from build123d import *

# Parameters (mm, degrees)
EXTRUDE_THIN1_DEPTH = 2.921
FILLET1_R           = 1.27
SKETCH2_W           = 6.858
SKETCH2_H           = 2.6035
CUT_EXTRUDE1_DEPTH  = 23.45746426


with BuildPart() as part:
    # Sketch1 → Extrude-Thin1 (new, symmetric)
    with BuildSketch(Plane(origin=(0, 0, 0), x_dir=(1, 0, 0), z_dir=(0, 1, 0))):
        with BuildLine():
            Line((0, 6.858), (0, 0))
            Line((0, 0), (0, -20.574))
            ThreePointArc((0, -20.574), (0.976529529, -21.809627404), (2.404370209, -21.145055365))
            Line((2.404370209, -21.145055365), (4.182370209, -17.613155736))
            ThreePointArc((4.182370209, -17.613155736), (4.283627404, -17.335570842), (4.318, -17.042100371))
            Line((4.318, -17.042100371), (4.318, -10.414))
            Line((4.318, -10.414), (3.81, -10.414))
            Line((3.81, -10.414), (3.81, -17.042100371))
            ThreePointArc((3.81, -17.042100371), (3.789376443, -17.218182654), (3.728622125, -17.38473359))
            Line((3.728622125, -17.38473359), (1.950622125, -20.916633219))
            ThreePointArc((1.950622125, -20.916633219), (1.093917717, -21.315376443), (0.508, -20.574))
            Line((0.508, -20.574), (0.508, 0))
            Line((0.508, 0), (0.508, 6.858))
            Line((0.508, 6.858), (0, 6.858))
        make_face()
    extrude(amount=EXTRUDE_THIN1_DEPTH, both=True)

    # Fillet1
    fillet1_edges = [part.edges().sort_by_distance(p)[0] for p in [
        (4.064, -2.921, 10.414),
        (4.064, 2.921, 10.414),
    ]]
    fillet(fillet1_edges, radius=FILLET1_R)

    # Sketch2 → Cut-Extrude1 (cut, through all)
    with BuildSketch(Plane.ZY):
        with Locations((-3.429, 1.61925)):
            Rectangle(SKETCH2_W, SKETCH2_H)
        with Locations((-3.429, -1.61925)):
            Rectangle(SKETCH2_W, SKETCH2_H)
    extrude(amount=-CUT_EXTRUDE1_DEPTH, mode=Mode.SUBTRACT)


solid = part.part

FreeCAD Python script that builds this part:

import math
import FreeCAD as App
import Part
import Sketcher
from FreeCAD import Vector
Q = App.Units.Quantity


def edges_at(feature, points):
    """Names of the edges that pass closest to the given points."""
    edges = feature.Shape.Edges
    near = lambda p: min(range(len(edges)), key=lambda i: edges[i].distToShape(Part.Vertex(*p))[0])
    return sorted({f"Edge{near(p) + 1}" for p in points})


def add_polygon(sketch, points):
    """Adds a closed chain of lines whose ends are joined by coincident constraints."""
    first, n = sketch.GeometryCount, len(points)
    for a, b in zip(points, points[1:] + points[:1]):
        sketch.addGeometry(Part.LineSegment(App.Vector(*a, 0), App.Vector(*b, 0)), False)
    for i in range(n):
        sketch.addConstraint(Sketcher.Constraint("Coincident", first + i, 2, first + (i + 1) % n, 1))

doc = App.newDocument("Part")
body = doc.addObject("PartDesign::Body", "Body")

# Sketch on XZ plane
sketch1 = doc.addObject("Sketcher::SketchObject", "Sketch")
body.addObject(sketch1)
sketch1.AttachmentSupport = (doc.XZ_Plane, [""])
sketch1.MapMode = "FlatFace"
sketch1.addGeometry([
    Part.LineSegment(Vector(0, -6.858, 0), Vector(0, 20.574, 0)),  # 0
    Part.ArcOfCircle(Part.Circle(Vector(1.27, 20.574, 0), Vector(0, 0, 1), 1.27), math.radians(26.721224), math.radians(180)),  # 1
    Part.LineSegment(Vector(2.40437, 21.145055, 0), Vector(4.18237, 17.613156, 0)),  # 2
    Part.ArcOfCircle(Part.Circle(Vector(3.048, 17.0421, 0), Vector(0, 0, 1), 1.27), math.radians(0), math.radians(26.721223)),  # 3
    Part.LineSegment(Vector(4.318, 17.0421, 0), Vector(4.318, 10.414, 0)),  # 4
    Part.LineSegment(Vector(4.318, 10.414, 0), Vector(3.81, 10.414, 0)),  # 5
    Part.LineSegment(Vector(3.81, 10.414, 0), Vector(3.81, 17.0421, 0)),  # 6
    Part.ArcOfCircle(Part.Circle(Vector(3.048, 17.0421, 0), Vector(0, 0, 1), 0.762), math.radians(0), math.radians(26.721224)),  # 7
    Part.LineSegment(Vector(3.728622, 17.384734, 0), Vector(1.950622, 20.916633, 0)),  # 8
    Part.ArcOfCircle(Part.Circle(Vector(1.27, 20.574, 0), Vector(0, 0, 1), 0.762), math.radians(26.721224), math.radians(180)),  # 9
    Part.LineSegment(Vector(0.508, 20.574, 0), Vector(0.508, -6.858, 0)),  # 10
    Part.LineSegment(Vector(0.508, -6.858, 0), Vector(0, -6.858, 0)),  # 11
], False)
sketch1.addConstraint([
    Sketcher.Constraint("Tangent", 0, 2, 1, 2),
    Sketcher.Constraint("Tangent", 1, 1, 2, 1),
    Sketcher.Constraint("Tangent", 2, 2, 3, 2),
    Sketcher.Constraint("Tangent", 3, 1, 4, 1),
    Sketcher.Constraint("Coincident", 4, 2, 5, 1),
    Sketcher.Constraint("Coincident", 5, 2, 6, 1),
    Sketcher.Constraint("Tangent", 6, 2, 7, 1),
    Sketcher.Constraint("Tangent", 7, 2, 8, 1),
    Sketcher.Constraint("Tangent", 8, 2, 9, 1),
    Sketcher.Constraint("Tangent", 9, 2, 10, 1),
    Sketcher.Constraint("Coincident", 10, 2, 11, 1),
    Sketcher.Constraint("Coincident", 11, 2, 0, 1),
    Sketcher.Constraint("Vertical", 0),
    Sketcher.Constraint("Vertical", 4),
    Sketcher.Constraint("Horizontal", 5),
    Sketcher.Constraint("Vertical", 6),
    Sketcher.Constraint("Vertical", 10),
    Sketcher.Constraint("Horizontal", 11),
    Sketcher.Constraint("Coincident", 7, 3, 3, 3),
    Sketcher.Constraint("Coincident", 9, 3, 1, 3),
    Sketcher.Constraint("Equal", 1, 3),
    Sketcher.Constraint("Equal", 7, 9),
    Sketcher.Constraint("PointOnObject", 0, 2, -2),
    Sketcher.Constraint("Radius", 1, Q("0.05 in")),
    Sketcher.Constraint("Radius", 7, Q("0.03 in")),
    Sketcher.Constraint("DistanceY", 0, 1, 0, 2, Q("1.08 in")),
    Sketcher.Constraint("DistanceY", 4, 2, 1, 3, Q("0.4 in")),
    Sketcher.Constraint("DistanceX", 10, 2, 3, 3, Q("0.1 in")),
    Sketcher.Constraint("DistanceY", -1, 1, 1, 3, Q("0.81 in")),
    Sketcher.Constraint("DistanceY", 4, 2, 4, 1, Q("6.6281 mm")),
])
pad1 = doc.addObject("PartDesign::Pad", "Pad")
body.addObject(pad1)
pad1.Profile = sketch1
pad1.Length = Q("0.23 in")
pad1.Midplane = True
doc.recompute()

fillet = doc.addObject("PartDesign::Fillet", "Fillet")
body.addObject(fillet)
fillet.Base = (pad1, edges_at(pad1, [(4.064, -2.921, 10.414), (4.064, 2.921, 10.414)]))
fillet.Radius = Q("0.05 in")

# Sketch on YZ plane
sketch2 = doc.addObject("Sketcher::SketchObject", "Sketch001")
body.addObject(sketch2)
sketch2.AttachmentSupport = (doc.YZ_Plane, [""])
sketch2.MapMode = "FlatFace"
add_polygon(sketch2, [(2.921, -6.858), (0.3175, -6.858), (0.3175, 0), (2.921, 0)])  # lines 0-3
add_polygon(sketch2, [(-0.3175, -6.858), (-2.921, -6.858), (-2.921, 0), (-0.3175, 0)])  # lines 4-7
sketch2.addConstraint([
    Sketcher.Constraint("Horizontal", 0),
    Sketcher.Constraint("Vertical", 1),
    Sketcher.Constraint("Horizontal", 2),
    Sketcher.Constraint("Vertical", 3),
    Sketcher.Constraint("Horizontal", 4),
    Sketcher.Constraint("Vertical", 5),
    Sketcher.Constraint("Horizontal", 6),
    Sketcher.Constraint("Vertical", 7),
    Sketcher.Constraint("Symmetric", 2, 2, 5, 2, -1, 1),
    Sketcher.Constraint("Symmetric", 1, 2, 6, 2, -2),
    Sketcher.Constraint("Horizontal", 3, 2, 4, 2),
    Sketcher.Constraint("DistanceY", 1, 1, 1, 2, Q("0.27 in")),
    Sketcher.Constraint("DistanceX", 4, 2, 3, 2, Q("0.23 in")),
    Sketcher.Constraint("DistanceX", 0, 2, 0, 1, Q("0.1025 in")),
])
pocket1 = doc.addObject("PartDesign::Pocket", "Pocket")
body.addObject(pocket1)
pocket1.Profile = sketch2
pocket1.Type = "ThroughAll"
pocket1.Reversed = True

doc.recompute()
